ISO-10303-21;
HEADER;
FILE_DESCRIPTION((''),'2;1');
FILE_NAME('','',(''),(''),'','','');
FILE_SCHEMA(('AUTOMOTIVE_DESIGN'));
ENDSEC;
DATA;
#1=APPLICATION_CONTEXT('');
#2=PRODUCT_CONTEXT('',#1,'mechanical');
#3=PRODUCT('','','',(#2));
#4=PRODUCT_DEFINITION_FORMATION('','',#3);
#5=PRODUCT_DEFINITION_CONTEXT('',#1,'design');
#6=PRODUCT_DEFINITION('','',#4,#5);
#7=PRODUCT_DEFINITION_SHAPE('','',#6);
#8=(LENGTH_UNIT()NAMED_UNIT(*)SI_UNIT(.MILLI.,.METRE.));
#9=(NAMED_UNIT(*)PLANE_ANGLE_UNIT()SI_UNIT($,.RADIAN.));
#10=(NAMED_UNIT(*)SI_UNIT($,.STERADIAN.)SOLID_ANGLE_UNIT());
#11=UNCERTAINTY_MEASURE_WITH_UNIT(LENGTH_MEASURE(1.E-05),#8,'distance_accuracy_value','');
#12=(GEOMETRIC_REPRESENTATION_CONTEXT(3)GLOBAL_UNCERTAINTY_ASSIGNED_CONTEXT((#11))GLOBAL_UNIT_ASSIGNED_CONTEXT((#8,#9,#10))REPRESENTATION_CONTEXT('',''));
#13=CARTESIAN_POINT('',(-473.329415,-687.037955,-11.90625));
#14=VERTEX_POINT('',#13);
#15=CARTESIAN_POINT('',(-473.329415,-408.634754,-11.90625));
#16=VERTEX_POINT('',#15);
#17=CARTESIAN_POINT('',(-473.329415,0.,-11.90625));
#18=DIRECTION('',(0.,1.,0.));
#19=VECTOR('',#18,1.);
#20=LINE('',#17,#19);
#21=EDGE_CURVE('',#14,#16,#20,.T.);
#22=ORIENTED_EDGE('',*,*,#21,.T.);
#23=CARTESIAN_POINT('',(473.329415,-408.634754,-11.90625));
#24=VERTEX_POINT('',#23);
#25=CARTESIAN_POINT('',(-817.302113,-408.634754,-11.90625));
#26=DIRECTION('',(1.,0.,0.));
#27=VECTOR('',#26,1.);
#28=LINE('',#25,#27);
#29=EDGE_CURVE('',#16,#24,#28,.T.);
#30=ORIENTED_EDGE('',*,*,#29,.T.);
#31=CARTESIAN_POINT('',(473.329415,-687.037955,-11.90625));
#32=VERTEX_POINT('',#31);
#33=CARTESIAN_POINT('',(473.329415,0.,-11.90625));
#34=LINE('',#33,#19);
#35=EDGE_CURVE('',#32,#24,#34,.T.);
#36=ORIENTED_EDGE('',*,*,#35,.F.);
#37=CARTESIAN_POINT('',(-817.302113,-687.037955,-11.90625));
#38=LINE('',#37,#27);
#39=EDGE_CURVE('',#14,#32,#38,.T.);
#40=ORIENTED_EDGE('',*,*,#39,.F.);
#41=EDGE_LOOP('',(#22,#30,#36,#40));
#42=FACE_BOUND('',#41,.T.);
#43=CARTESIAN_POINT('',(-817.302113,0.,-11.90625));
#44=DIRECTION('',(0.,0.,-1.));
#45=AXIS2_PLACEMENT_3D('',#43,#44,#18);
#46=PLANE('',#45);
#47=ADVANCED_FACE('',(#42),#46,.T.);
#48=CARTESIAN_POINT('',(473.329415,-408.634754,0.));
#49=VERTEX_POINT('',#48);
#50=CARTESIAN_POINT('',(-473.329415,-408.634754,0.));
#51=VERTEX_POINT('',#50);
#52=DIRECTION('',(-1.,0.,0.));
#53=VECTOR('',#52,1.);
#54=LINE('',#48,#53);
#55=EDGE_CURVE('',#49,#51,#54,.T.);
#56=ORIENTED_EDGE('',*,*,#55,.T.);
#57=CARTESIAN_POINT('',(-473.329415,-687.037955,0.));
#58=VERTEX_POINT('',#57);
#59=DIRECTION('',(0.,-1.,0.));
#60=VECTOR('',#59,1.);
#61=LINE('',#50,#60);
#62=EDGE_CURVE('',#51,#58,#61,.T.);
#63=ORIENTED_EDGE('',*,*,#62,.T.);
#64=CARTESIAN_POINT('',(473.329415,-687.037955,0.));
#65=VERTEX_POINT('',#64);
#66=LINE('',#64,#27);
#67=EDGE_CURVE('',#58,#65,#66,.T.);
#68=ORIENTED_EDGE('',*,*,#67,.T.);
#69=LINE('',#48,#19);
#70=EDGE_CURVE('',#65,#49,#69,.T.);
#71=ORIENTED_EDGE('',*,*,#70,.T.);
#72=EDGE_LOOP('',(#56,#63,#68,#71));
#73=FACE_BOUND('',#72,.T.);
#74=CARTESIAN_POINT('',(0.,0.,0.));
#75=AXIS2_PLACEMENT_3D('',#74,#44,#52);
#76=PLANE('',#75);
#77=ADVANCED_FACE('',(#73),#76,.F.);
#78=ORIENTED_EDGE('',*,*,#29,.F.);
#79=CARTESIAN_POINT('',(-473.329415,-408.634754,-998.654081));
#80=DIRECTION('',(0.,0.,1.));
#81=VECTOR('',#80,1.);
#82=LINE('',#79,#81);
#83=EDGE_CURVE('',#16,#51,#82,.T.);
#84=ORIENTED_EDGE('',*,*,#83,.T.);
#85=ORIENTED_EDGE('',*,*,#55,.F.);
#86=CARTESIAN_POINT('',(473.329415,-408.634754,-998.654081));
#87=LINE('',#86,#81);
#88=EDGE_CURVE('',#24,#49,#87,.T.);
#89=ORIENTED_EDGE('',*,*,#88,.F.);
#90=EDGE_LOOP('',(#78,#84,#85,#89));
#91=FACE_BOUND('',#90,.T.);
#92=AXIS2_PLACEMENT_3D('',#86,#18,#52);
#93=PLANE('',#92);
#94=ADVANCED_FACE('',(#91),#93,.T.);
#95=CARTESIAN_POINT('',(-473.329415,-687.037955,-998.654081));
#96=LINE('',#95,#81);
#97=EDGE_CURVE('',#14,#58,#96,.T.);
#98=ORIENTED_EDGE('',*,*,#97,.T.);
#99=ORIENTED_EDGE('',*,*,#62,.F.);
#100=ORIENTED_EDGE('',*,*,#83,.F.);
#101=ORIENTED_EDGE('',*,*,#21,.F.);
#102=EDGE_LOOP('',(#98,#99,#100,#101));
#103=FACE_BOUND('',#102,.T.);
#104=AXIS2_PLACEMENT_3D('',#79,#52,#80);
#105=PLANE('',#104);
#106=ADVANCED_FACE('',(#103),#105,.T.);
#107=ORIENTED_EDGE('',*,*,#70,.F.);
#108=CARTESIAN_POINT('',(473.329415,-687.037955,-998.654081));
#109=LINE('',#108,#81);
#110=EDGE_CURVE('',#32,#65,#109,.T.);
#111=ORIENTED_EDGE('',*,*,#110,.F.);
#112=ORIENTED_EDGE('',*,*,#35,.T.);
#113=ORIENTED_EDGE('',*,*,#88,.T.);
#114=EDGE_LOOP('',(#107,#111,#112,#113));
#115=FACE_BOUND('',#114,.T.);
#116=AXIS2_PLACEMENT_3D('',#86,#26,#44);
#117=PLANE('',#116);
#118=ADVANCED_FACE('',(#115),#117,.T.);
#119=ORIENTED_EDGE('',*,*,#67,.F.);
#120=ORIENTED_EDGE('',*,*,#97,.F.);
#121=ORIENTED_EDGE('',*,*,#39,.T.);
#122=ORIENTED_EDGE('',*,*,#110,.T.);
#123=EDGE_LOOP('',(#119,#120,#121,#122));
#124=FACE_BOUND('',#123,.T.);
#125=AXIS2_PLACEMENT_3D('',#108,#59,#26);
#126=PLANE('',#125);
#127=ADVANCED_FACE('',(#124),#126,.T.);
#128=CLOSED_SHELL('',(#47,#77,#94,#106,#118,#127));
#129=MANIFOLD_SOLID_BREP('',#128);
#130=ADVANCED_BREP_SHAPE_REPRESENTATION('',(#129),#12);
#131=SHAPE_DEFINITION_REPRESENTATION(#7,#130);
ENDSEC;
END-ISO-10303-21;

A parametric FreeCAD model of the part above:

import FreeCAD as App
import Part
import Sketcher

V = App.Vector
Q = App.Units.Quantity

doc = App.newDocument("Part")
body = doc.addObject("PartDesign::Body", "Body")

sketch1 = body.newObject("Sketcher::SketchObject", "Sketch")
sketch1.AttachmentSupport = (doc.getObject("XY_Plane"), [""])
sketch1.MapMode = "FlatFace"
sketch1.addGeometry([
    Part.LineSegment(V(-473.329415, -408.634754, 0), V(-473.329415, -687.037955, 0)),
    Part.LineSegment(V(-473.329415, -687.037955, 0), V(473.329415, -687.037955, 0)),
    Part.LineSegment(V(473.329415, -687.037955, 0), V(473.329415, -408.634754, 0)),
    Part.LineSegment(V(473.329415, -408.634754, 0), V(-473.329415, -408.634754, 0)),
], False)
sketch1.addConstraint([
    Sketcher.Constraint("Coincident", 0, 2, 1, 1),
    Sketcher.Constraint("Coincident", 1, 2, 2, 1),
    Sketcher.Constraint("Coincident", 2, 2, 3, 1),
    Sketcher.Constraint("Coincident", 3, 2, 0, 1),
    Sketcher.Constraint("Vertical", 0),
    Sketcher.Constraint("Horizontal", 1),
    Sketcher.Constraint("Vertical", 2),
    Sketcher.Constraint("Horizontal", 3),
    Sketcher.Constraint("DistanceY", 0, 2, 0, 1, 278.403202),
    Sketcher.Constraint("DistanceX", 1, 1, 1, 2, 946.658829),
    Sketcher.Constraint("DistanceX", 0, 2, -1, 1, 473.329415),
    Sketcher.Constraint("DistanceY", 0, 2, -1, 1, 687.037955),
])
pad1 = body.newObject("PartDesign::Pad", "Pad")
pad1.Profile = sketch1
pad1.Length = Q("0.46875 in")
pad1.Reversed = True

doc.recompute()
